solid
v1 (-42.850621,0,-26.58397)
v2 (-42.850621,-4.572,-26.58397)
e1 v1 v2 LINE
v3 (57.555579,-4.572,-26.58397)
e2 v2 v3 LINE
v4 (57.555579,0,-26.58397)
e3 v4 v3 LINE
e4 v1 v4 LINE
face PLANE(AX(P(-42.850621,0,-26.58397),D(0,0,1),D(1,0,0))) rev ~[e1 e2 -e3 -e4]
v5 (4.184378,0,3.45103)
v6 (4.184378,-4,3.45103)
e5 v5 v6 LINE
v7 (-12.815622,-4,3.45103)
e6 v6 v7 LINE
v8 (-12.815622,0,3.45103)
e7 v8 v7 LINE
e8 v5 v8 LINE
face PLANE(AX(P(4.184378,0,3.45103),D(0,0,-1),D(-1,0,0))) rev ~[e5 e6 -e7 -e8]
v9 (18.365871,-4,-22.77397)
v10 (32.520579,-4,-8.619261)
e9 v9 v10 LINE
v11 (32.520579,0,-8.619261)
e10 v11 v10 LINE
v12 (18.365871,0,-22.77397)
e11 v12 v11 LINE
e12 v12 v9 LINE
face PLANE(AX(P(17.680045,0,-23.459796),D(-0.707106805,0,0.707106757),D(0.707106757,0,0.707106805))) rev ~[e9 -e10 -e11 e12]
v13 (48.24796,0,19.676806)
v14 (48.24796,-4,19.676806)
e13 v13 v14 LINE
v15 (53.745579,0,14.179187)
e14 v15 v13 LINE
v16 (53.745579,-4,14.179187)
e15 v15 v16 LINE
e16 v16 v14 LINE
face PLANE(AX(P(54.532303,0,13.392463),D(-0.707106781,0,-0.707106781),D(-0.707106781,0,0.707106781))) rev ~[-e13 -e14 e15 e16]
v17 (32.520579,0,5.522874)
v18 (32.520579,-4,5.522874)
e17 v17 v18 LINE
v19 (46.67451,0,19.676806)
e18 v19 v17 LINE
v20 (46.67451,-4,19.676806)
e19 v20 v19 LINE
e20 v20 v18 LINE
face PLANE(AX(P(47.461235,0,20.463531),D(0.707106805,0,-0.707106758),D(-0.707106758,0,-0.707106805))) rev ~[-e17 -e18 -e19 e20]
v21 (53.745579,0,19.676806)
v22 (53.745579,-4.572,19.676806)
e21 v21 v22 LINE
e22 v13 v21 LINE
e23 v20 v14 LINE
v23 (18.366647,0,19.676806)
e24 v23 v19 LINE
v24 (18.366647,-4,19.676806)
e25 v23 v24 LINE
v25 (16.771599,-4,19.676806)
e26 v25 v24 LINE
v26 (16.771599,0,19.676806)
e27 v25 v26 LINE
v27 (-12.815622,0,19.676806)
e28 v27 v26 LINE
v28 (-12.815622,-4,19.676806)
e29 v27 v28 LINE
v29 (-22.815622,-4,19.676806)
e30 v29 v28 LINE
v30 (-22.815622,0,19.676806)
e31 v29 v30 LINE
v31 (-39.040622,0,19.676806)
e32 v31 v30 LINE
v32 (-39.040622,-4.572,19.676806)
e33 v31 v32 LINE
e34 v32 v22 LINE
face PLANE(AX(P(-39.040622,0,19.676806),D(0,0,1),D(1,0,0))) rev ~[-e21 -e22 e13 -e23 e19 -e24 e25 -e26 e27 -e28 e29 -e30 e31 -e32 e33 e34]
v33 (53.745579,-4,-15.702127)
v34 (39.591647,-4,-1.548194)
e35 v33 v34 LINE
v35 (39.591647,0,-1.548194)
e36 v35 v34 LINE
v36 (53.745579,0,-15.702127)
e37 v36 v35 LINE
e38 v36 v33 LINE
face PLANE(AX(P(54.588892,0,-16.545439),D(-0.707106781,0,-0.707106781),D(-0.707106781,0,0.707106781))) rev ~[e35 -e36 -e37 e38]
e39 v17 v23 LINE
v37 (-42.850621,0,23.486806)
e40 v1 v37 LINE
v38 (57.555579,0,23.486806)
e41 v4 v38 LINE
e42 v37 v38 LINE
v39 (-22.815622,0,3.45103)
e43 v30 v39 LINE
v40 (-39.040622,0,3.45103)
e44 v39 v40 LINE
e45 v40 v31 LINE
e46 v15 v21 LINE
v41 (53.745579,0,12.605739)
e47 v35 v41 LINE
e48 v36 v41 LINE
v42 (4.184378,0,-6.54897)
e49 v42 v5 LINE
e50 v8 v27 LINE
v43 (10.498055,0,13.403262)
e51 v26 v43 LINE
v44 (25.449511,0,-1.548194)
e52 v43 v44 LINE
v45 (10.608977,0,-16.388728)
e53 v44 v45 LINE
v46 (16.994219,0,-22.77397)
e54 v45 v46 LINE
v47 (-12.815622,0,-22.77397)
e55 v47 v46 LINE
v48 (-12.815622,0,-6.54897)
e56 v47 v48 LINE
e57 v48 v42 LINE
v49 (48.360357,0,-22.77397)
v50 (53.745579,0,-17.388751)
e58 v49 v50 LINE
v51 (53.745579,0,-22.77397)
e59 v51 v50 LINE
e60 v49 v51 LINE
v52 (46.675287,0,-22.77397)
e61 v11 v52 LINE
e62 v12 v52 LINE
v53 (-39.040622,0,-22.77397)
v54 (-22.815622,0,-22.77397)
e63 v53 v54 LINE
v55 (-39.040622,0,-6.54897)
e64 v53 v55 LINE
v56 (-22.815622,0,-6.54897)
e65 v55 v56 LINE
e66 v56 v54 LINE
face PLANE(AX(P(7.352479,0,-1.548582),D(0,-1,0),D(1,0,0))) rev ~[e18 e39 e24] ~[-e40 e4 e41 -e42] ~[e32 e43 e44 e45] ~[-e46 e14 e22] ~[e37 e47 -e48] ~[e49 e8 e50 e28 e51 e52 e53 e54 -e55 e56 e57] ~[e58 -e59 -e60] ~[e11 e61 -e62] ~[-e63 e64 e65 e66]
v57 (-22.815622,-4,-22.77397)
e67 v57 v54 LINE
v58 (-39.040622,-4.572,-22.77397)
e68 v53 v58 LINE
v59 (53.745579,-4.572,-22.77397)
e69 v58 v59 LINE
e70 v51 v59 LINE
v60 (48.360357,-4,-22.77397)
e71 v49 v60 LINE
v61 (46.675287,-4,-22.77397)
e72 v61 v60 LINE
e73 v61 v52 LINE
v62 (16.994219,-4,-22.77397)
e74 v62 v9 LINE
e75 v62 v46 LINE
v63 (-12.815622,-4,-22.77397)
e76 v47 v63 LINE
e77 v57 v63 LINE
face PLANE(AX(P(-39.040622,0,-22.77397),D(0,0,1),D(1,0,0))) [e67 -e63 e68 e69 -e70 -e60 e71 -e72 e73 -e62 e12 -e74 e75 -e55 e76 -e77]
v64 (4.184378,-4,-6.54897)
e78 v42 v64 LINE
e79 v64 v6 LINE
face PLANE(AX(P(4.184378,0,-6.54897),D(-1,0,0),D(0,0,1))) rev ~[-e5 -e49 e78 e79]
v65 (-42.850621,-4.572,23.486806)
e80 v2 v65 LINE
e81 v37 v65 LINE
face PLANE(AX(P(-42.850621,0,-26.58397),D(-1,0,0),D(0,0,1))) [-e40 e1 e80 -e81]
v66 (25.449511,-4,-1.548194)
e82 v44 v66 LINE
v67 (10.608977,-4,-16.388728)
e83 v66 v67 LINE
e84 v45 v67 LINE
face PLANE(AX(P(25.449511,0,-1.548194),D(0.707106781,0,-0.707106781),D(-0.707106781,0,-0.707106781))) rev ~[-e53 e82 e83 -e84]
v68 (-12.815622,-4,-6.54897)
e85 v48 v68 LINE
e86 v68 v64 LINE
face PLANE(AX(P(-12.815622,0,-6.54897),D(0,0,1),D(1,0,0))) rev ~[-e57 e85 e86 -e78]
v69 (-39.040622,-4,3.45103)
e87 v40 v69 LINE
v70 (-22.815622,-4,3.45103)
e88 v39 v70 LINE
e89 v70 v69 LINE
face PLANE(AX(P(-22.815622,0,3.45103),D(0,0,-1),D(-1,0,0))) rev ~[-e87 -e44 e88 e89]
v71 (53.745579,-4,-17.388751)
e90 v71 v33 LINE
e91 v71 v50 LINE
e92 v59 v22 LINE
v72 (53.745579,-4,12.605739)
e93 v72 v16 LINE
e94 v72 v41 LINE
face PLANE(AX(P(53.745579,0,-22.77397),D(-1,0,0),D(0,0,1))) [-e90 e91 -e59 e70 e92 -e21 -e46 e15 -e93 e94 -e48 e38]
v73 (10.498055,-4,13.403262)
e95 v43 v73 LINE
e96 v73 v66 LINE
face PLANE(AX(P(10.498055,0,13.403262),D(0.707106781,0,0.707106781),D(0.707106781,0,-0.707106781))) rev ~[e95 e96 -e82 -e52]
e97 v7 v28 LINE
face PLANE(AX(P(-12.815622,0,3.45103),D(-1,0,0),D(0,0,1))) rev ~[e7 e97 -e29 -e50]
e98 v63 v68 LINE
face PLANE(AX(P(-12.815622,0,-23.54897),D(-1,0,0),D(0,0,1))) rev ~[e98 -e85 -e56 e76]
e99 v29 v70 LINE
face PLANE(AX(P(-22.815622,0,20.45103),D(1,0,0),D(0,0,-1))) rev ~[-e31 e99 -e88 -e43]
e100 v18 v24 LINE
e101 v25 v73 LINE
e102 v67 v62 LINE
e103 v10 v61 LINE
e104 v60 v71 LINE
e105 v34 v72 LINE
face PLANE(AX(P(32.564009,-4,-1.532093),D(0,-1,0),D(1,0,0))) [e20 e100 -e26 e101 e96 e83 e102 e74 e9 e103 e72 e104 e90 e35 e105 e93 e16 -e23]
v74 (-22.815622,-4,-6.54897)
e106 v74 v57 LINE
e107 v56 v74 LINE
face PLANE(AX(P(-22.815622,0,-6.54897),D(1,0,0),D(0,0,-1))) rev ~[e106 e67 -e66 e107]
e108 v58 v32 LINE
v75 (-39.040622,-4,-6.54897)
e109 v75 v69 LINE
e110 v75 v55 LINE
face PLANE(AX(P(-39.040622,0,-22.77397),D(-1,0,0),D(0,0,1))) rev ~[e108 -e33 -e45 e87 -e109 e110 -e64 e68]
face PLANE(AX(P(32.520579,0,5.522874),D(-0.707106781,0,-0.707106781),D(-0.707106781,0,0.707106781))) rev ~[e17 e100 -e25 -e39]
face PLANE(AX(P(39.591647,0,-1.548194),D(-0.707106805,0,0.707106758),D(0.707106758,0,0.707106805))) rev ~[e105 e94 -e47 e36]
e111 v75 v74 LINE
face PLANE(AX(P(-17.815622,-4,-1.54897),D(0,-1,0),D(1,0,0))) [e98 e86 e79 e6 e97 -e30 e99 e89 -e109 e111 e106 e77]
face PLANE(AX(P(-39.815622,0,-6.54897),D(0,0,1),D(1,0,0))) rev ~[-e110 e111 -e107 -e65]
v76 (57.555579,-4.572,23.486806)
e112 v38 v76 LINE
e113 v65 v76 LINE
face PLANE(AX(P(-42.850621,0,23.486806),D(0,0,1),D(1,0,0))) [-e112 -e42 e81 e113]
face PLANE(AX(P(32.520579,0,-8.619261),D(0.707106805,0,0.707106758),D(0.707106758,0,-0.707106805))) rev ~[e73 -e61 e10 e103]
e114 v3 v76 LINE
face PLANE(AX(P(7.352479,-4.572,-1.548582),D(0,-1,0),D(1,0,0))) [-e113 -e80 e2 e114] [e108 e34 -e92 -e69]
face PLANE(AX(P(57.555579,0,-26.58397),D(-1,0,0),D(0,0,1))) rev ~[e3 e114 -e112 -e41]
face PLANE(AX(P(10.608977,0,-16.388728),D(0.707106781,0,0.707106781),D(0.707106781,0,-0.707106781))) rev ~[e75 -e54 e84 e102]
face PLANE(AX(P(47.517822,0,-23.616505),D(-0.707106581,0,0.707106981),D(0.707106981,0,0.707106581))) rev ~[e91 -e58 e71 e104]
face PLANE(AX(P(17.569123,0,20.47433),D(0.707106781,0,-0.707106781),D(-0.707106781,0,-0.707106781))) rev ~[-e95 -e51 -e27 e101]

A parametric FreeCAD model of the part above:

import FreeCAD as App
import Part
import Sketcher

V = App.Vector


def add_polygon(sketch, points):
    """Adds a closed chain of lines whose ends are joined by coincident constraints."""
    first, n = sketch.GeometryCount, len(points)
    for a, b in zip(points, points[1:] + points[:1]):
        sketch.addGeometry(Part.LineSegment(App.Vector(*a, 0), App.Vector(*b, 0)), False)
    for i in range(n):
        sketch.addConstraint(Sketcher.Constraint("Coincident", first + i, 2, first + (i + 1) % n, 1))

doc = App.newDocument("Part")
body = doc.addObject("PartDesign::Body", "Body")

# Sketch on XZ plane
sketch1 = body.newObject("Sketcher::SketchObject", "Sketch")
sketch1.AttachmentSupport = (doc.getObject("XZ_Plane"), [""])
sketch1.MapMode = "FlatFace"
add_polygon(sketch1, [(-42.850621, 23.486806), (-42.850621, -26.58397), (57.555579, -26.58397), (57.555579, 23.486806)])  # lines 0-3
add_polygon(sketch1, [(53.745579, -22.77397), (-39.040622, -22.77397), (-39.040622, 19.676806), (53.745579, 19.676806)])  # lines 4-7
sketch1.addConstraint([
    Sketcher.Constraint("Vertical", 0),
    Sketcher.Constraint("Horizontal", 1),
    Sketcher.Constraint("Vertical", 2),
    Sketcher.Constraint("Horizontal", 3),
    Sketcher.Constraint("Horizontal", 4),
    Sketcher.Constraint("Vertical", 5),
    Sketcher.Constraint("Horizontal", 6),
    Sketcher.Constraint("Vertical", 7),
    Sketcher.Constraint("DistanceX", 0, 2, 4, 2, 3.809999),
    Sketcher.Constraint("DistanceY", 0, 2, 4, 2, 3.81),
    Sketcher.Constraint("DistanceY", 5, 2, 3, 2, 3.81),
    Sketcher.Constraint("DistanceX", 6, 2, 2, 2, 3.81),
    Sketcher.Constraint("DistanceX", 1, 1, 1, 2, 100.4062),
    Sketcher.Constraint("DistanceY", 0, 2, 0, 1, 50.070776),
    Sketcher.Constraint("DistanceX", 0, 2, -1, 1, 42.850621),
    Sketcher.Constraint("DistanceY", 0, 2, -1, 1, 26.58397),
])
pad1 = body.newObject("PartDesign::Pad", "Pad")
pad1.Profile = sketch1
pad1.Length = 4.572

# Sketch on XZ plane
sketch2 = body.newObject("Sketcher::SketchObject", "Sketch001")
sketch2.AttachmentSupport = (doc.getObject("XZ_Plane"), [""])
sketch2.MapMode = "FlatFace"
add_polygon(sketch2, [(47.517822, -23.616505), (54.588892, -16.545439), (39.591647, -1.548194), (54.532303, 13.392463), (47.461235, 20.463531), (32.520579, 5.522874), (17.569123, 20.47433), (10.498055, 13.403262), (25.449511, -1.548194), (10.608977, -16.388728), (17.680045, -23.459796), (32.520579, -8.619261)])  # lines 0-11
sketch2.addConstraint([
    Sketcher.Constraint("Perpendicular", 0, 1),
    Sketcher.Constraint("Perpendicular", 1, 2),
    Sketcher.Constraint("Perpendicular", 2, 3),
    Sketcher.Constraint("Perpendicular", 3, 4),
    Sketcher.Constraint("Perpendicular", 4, 5),
    Sketcher.Constraint("Perpendicular", 5, 6),
    Sketcher.Constraint("Perpendicular", 6, 7),
    Sketcher.Constraint("Perpendicular", 7, 8),
    Sketcher.Constraint("Perpendicular", 8, 9),
    Sketcher.Constraint("Perpendicular", 9, 10),
    Sketcher.Constraint("Perpendicular", 10, 11),
    Sketcher.Constraint("Horizontal", 1, 2, 7, 2),
    Sketcher.Constraint("Vertical", 4, 2, 10, 2),
    Sketcher.Constraint("Equal", 0, 3),
    Sketcher.Constraint("Equal", 2, 4),
    Sketcher.Constraint("Equal", 3, 6),
    Sketcher.Constraint("Equal", 5, 7),
    Sketcher.Constraint("Distance", 0, 10.0),
    Sketcher.Constraint("DistanceY", 0, 2, 2, 2, 29.937902),
    Sketcher.Constraint("DistanceY", 3, 2, 5, 2, 0.010799),
    Sketcher.Constraint("DistanceX", 8, 2, 4, 2, 21.911602),
    Sketcher.Constraint("Distance", 2, 21.129279),
    Sketcher.Constraint("DistanceY", 0, 2, -1, 1, 16.545439),
    Sketcher.Constraint("DistanceX", -1, 1, 4, 2, 32.520579),
])
pad2 = body.newObject("PartDesign::Pad", "Pad001")
pad2.Profile = sketch2
pad2.Length = 4

# Sketch on XZ plane
sketch3 = body.newObject("Sketcher::SketchObject", "Sketch002")
sketch3.AttachmentSupport = (doc.getObject("XZ_Plane"), [""])
sketch3.MapMode = "FlatFace"
add_polygon(sketch3, [(-39.815622, 3.45103), (-39.815622, -6.54897), (-22.815622, -6.54897), (-22.815622, -23.54897), (-12.815622, -23.54897), (-12.815622, -6.54897), (4.184378, -6.54897), (4.184378, 3.45103), (-12.815622, 3.45103), (-12.815622, 20.45103), (-22.815622, 20.45103), (-22.815622, 3.45103)])  # lines 0-11
sketch3.addConstraint([
    Sketcher.Constraint("Vertical", 0),
    Sketcher.Constraint("Horizontal", 1),
    Sketcher.Constraint("Vertical", 2),
    Sketcher.Constraint("Horizontal", 3),
    Sketcher.Constraint("Vertical", 4),
    Sketcher.Constraint("Horizontal", 5),
    Sketcher.Constraint("Vertical", 6),
    Sketcher.Constraint("Horizontal", 7),
    Sketcher.Constraint("Vertical", 8),
    Sketcher.Constraint("Horizontal", 9),
    Sketcher.Constraint("Vertical", 10),
    Sketcher.Constraint("Horizontal", 11),
    Sketcher.Constraint("Horizontal", 1, 2, 4, 2),
    Sketcher.Constraint("Horizontal", 7, 2, 10, 2),
    Sketcher.Constraint("Vertical", 4, 2, 7, 2),
    Sketcher.Constraint("Vertical", 2, 2, 9, 2),
    Sketcher.Constraint("Equal", 1, 5),
    Sketcher.Constraint("Equal", 9, 0),
    Sketcher.Constraint("Equal", 11, 2),
    Sketcher.Constraint("Equal", 4, 8),
    Sketcher.Constraint("DistanceX", 1, 1, 1, 2, 17.0),
    Sketcher.Constraint("DistanceX", 3, 1, 3, 2, 10.0),
    Sketcher.Constraint("DistanceX", 0, 2, -1, 1, 39.815622),
    Sketcher.Constraint("DistanceY", 0, 2, -1, 1, 6.54897),
])
pad3 = body.newObject("PartDesign::Pad", "Pad002")
pad3.Profile = sketch3
pad3.Length = 4

doc.recompute()
